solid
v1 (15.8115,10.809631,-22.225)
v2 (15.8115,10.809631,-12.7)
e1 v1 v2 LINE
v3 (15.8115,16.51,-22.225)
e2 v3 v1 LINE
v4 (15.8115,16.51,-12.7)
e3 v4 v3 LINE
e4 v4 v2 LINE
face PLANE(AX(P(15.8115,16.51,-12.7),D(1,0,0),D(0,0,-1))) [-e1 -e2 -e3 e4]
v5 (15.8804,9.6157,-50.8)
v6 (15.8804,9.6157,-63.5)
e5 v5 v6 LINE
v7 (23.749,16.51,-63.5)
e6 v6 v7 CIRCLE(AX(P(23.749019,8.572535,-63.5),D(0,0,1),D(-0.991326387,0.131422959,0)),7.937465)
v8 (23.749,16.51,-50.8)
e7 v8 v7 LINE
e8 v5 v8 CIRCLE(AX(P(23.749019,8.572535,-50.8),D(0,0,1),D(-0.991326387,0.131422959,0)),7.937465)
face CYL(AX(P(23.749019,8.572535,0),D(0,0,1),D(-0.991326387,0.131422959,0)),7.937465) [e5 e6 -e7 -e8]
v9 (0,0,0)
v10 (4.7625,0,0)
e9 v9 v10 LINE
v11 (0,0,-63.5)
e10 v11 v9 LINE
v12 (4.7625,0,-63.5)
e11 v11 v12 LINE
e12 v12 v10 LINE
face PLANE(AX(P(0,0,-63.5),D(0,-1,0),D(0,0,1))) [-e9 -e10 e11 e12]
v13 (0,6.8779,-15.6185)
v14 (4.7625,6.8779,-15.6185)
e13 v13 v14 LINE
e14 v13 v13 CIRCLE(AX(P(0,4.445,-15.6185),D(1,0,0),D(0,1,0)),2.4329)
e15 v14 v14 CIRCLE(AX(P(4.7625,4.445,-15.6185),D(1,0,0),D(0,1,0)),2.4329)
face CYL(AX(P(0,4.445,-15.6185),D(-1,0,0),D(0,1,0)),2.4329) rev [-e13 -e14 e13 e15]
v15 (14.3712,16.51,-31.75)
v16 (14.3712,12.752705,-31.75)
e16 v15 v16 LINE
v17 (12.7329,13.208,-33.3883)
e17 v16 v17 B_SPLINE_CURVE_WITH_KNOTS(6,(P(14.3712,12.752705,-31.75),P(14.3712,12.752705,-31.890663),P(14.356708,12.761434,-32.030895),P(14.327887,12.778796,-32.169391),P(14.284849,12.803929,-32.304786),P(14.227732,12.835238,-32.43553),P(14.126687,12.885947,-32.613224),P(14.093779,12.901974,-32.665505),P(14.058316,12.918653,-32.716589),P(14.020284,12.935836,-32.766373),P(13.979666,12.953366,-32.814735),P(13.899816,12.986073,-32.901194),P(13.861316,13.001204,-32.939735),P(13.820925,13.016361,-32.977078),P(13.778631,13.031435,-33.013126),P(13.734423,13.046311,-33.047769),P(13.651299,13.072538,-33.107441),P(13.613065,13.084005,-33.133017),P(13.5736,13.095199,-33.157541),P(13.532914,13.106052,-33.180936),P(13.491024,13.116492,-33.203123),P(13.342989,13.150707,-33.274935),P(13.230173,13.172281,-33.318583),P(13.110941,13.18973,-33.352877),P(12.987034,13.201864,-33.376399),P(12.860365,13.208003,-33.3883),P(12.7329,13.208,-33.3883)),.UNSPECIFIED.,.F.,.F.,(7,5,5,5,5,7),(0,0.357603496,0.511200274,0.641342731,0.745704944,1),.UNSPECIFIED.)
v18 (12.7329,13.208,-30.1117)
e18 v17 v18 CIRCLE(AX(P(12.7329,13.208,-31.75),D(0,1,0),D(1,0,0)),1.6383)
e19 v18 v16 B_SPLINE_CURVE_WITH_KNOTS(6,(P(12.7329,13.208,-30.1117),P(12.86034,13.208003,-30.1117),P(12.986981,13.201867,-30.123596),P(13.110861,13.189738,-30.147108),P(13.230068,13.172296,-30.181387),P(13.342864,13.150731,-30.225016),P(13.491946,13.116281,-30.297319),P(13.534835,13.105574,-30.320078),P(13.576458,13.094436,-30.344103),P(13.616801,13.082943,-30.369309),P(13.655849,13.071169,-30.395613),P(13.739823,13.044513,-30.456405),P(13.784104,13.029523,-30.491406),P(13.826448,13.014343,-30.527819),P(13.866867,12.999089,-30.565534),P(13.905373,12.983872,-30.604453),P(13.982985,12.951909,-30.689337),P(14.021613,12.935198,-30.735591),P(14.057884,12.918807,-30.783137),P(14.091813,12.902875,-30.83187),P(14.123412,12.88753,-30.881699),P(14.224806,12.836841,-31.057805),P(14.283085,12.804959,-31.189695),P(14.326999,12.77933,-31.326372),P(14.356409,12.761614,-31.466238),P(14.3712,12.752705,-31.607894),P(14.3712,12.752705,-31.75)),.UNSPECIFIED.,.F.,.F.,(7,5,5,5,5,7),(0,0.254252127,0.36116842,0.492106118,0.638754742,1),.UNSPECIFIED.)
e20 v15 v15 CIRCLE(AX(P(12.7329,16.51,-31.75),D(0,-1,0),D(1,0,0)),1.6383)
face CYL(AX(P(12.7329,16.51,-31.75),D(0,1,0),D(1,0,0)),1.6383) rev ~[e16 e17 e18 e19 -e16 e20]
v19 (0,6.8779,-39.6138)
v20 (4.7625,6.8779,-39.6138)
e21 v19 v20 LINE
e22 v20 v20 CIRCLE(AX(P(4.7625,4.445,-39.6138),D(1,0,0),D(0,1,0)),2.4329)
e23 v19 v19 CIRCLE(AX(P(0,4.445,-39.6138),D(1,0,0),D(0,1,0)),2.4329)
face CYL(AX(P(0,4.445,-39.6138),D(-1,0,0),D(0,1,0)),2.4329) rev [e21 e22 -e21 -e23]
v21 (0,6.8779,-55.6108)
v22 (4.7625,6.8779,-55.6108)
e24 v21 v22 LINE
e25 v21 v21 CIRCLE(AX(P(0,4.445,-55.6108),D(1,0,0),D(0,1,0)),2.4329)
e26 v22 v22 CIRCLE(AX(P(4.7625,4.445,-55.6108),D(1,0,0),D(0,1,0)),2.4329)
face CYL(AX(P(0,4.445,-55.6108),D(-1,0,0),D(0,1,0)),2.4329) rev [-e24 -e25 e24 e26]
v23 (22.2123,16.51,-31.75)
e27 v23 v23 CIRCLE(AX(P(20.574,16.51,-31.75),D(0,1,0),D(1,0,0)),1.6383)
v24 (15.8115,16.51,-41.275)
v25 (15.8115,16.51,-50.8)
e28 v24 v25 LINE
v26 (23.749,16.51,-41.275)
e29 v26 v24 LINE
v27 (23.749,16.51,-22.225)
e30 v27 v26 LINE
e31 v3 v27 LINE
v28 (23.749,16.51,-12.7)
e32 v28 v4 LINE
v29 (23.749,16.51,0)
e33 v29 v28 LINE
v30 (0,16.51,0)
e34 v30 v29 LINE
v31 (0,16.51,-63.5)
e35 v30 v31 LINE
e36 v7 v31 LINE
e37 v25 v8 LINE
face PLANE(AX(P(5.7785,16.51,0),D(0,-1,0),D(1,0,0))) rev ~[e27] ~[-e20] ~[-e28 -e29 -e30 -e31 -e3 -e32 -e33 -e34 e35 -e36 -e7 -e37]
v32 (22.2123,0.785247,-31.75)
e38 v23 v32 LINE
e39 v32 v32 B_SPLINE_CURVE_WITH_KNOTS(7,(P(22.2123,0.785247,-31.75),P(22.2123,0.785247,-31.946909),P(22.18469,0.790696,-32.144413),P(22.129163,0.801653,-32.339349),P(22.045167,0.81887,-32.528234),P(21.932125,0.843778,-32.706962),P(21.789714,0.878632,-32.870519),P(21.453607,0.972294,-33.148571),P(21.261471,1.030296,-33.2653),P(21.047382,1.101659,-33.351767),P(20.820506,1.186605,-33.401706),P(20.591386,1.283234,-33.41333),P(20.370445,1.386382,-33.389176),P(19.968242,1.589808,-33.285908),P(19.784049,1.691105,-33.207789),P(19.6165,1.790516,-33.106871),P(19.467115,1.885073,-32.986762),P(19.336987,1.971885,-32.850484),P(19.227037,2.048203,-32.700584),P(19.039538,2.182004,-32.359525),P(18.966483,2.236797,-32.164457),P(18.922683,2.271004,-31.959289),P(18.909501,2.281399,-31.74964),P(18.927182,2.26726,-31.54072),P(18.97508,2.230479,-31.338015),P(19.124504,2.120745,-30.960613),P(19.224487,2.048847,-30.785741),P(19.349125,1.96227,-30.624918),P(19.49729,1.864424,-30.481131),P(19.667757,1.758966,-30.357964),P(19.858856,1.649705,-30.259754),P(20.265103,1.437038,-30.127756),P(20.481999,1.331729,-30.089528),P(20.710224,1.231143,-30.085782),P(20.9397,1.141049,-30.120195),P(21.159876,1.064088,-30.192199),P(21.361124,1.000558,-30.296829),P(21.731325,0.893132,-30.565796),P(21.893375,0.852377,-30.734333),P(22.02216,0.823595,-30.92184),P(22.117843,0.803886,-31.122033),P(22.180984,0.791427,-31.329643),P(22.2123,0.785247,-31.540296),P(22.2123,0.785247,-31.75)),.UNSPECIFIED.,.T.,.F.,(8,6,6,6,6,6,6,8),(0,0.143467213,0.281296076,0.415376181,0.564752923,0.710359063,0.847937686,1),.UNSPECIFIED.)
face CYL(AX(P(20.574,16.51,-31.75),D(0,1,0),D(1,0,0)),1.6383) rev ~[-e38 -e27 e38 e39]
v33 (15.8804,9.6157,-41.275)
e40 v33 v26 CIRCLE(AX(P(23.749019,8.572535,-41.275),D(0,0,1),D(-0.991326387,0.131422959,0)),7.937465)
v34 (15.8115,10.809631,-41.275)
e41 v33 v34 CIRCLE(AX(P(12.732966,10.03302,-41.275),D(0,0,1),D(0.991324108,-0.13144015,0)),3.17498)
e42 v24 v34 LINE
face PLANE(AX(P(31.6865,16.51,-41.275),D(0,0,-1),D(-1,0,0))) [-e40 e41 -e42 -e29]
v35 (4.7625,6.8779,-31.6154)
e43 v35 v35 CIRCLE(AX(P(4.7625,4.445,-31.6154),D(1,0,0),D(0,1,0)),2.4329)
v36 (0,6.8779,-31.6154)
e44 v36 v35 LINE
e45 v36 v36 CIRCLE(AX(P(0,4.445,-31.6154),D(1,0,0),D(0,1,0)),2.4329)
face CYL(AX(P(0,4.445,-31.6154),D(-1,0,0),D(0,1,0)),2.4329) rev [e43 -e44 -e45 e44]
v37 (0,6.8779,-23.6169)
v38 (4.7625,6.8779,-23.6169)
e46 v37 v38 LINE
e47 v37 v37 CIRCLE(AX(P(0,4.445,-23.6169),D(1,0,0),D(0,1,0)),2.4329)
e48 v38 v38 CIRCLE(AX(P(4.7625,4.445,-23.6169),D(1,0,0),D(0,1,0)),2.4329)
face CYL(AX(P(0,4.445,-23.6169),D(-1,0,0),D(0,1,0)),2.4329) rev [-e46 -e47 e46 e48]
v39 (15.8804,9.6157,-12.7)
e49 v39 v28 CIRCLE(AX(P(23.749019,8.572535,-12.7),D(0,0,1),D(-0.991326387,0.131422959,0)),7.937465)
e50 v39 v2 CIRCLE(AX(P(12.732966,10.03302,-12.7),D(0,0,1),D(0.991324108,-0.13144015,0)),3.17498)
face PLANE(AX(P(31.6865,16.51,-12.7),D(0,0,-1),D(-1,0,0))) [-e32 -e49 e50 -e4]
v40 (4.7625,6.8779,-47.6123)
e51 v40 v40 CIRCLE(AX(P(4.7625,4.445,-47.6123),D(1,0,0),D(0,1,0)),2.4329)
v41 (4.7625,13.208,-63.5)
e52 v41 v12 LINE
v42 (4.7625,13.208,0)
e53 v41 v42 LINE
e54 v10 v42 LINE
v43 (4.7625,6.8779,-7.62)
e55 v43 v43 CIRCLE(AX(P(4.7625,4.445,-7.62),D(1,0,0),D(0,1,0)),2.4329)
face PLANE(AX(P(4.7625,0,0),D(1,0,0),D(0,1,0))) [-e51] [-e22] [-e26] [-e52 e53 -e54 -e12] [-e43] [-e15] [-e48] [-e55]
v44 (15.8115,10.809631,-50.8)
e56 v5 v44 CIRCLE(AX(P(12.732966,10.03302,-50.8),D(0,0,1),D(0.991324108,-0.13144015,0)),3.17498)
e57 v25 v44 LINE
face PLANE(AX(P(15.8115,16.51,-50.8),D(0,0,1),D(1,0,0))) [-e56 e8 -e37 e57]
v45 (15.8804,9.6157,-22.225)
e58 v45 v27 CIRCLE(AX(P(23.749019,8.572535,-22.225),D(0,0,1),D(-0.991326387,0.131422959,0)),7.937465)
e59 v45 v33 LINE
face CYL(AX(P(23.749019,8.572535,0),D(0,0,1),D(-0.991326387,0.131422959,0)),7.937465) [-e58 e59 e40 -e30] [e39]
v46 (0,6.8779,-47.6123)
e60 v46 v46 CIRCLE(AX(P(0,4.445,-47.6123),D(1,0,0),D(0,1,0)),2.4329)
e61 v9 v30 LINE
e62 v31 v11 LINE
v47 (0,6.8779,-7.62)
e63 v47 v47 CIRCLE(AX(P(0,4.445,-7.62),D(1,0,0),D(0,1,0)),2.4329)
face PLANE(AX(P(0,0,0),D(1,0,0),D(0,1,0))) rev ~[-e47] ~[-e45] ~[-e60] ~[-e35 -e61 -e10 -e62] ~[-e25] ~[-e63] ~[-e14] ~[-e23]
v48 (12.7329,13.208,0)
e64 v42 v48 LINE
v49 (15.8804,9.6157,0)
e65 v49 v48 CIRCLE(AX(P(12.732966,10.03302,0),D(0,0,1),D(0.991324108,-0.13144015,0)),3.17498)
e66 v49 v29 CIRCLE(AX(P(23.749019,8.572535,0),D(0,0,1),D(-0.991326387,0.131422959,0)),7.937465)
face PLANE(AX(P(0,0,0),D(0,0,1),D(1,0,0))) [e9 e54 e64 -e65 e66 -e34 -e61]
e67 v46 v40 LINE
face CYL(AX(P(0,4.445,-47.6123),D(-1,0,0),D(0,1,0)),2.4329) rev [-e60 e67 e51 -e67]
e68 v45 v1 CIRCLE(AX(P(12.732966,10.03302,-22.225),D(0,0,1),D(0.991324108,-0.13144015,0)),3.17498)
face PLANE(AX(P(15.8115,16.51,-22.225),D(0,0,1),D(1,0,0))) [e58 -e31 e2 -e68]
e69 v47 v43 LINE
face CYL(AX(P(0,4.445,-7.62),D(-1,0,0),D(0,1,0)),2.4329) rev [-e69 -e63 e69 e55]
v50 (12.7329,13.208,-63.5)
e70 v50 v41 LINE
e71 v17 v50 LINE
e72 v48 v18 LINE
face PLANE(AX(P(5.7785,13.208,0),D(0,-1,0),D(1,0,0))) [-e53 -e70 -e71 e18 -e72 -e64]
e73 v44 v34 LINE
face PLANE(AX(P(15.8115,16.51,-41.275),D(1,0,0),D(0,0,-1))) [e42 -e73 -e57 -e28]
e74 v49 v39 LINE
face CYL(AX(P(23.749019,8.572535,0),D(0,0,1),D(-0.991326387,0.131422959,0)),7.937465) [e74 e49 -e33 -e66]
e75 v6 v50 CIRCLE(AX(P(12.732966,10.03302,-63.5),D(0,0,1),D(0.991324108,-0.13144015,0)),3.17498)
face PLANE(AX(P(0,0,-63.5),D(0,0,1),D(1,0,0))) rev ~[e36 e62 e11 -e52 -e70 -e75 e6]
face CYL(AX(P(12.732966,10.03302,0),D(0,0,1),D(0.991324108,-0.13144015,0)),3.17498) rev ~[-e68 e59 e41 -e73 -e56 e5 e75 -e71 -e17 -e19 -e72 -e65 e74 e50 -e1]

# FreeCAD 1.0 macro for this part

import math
import FreeCAD as App
import Part
import Sketcher
from FreeCAD import Vector
Q = App.Units.Quantity

doc = App.newDocument("Part")
body = doc.addObject("PartDesign::Body", "Body")

# Sketch on YZ plane
sketch1 = doc.addObject("Sketcher::SketchObject", "Sketch")
body.addObject(sketch1)
sketch1.AttachmentSupport = (doc.YZ_Plane, [""])
sketch1.MapMode = "FlatFace"
sketch1.addGeometry([
    Part.LineSegment(Vector(16.5, 0, 0), Vector(0, 0, 0)),  # 0
    Part.LineSegment(Vector(0, 0, 0), Vector(0, -63.5, 0)),  # 1
    Part.LineSegment(Vector(0, -63.5, 0), Vector(16.5, -63.5, 0)),  # 2
    Part.LineSegment(Vector(16.5, -63.5, 0), Vector(16.5, 0, 0)),  # 3
    Part.Circle(Vector(4.4, -55.6, 0), Vector(0, 0, 1), 2.4),  # 4
    Part.Circle(Vector(4.4, -47.6, 0), Vector(0, 0, 1), 2.4),  # 5
    Part.Circle(Vector(4.4, -39.6, 0), Vector(0, 0, 1), 2.4),  # 6
    Part.Circle(Vector(4.4, -31.6, 0), Vector(0, 0, 1), 2.4),  # 7
    Part.Circle(Vector(4.4, -23.6, 0), Vector(0, 0, 1), 2.4),  # 8
    Part.Circle(Vector(4.4, -15.6, 0), Vector(0, 0, 1), 2.4),  # 9
    Part.Circle(Vector(4.4, -7.6, 0), Vector(0, 0, 1), 2.4),  # 10
], False)
sketch1.addConstraint([
    Sketcher.Constraint("Coincident", 0, 2, 1, 1),
    Sketcher.Constraint("Coincident", 1, 2, 2, 1),
    Sketcher.Constraint("Coincident", 2, 2, 3, 1),
    Sketcher.Constraint("Coincident", 3, 2, 0, 1),
    Sketcher.Constraint("Horizontal", 0),
    Sketcher.Constraint("Vertical", 1),
    Sketcher.Constraint("Horizontal", 2),
    Sketcher.Constraint("Vertical", 3),
    Sketcher.Constraint("Coincident", 0, 2, -1, 1),
    Sketcher.Constraint("Equal", 4, 5),
    Sketcher.Constraint("Equal", 5, 6),
    Sketcher.Constraint("Equal", 6, 7),
    Sketcher.Constraint("Equal", 7, 8),
    Sketcher.Constraint("Equal", 8, 9),
    Sketcher.Constraint("Equal", 9, 10),
    Sketcher.Constraint("Vertical", 4, 3, 5, 3),
    Sketcher.Constraint("Vertical", 5, 3, 6, 3),
    Sketcher.Constraint("Vertical", 6, 3, 7, 3),
    Sketcher.Constraint("Vertical", 7, 3, 8, 3),
    Sketcher.Constraint("Vertical", 8, 3, 9, 3),
    Sketcher.Constraint("Vertical", 9, 3, 10, 3),
    Sketcher.Constraint("DistanceY", 1, 2, 1, 1, Q("2.5 in")),
    Sketcher.Constraint("DistanceX", 0, 2, 0, 1, Q("0.65 in")),
    Sketcher.Constraint("DistanceY", 10, 3, -1, 1, Q("0.3 in")),
    Sketcher.Constraint("DistanceY", 4, 3, 5, 3, Q("0.3149 in")),
    Sketcher.Constraint("DistanceY", 5, 3, 6, 3, Q("0.3149 in")),
    Sketcher.Constraint("DistanceY", 6, 3, 7, 3, Q("0.3149 in")),
    Sketcher.Constraint("DistanceY", 7, 3, 8, 3, Q("0.3149 in")),
    Sketcher.Constraint("DistanceY", 8, 3, 9, 3, Q("0.3149 in")),
    Sketcher.Constraint("DistanceY", 9, 3, 10, 3, Q("0.3149 in")),
    Sketcher.Constraint("Diameter", 4, Q("4.8658 mm")),
    Sketcher.Constraint("DistanceX", -1, 1, 4, 3, Q("0.175 in")),
])
pad1 = doc.addObject("PartDesign::Pad", "Pad")
body.addObject(pad1)
pad1.Profile = sketch1
pad1.Length = Q("0.1875 in")

# Sketch on YZ plane
sketch2 = doc.addObject("Sketcher::SketchObject", "Sketch001")
body.addObject(sketch2)
sketch2.AttachmentSupport = (doc.YZ_Plane, [""])
sketch2.MapMode = "FlatFace"
sketch2.AttachmentOffset = App.Placement(Vector(0, 0, 0.1875 * 25.4), App.Rotation())
sketch2.addGeometry([
    Part.LineSegment(Vector(13.2, -63.5, 0), Vector(16.5, -63.5, 0)),
    Part.LineSegment(Vector(16.5, -63.5, 0), Vector(16.5, 0, 0)),
    Part.LineSegment(Vector(16.5, 0, 0), Vector(13.2, 0, 0)),
    Part.LineSegment(Vector(13.2, 0, 0), Vector(13.2, -63.5, 0)),
], False)
sketch2.addConstraint([
    Sketcher.Constraint("Coincident", 0, 2, 1, 1),
    Sketcher.Constraint("Coincident", 1, 2, 2, 1),
    Sketcher.Constraint("Coincident", 2, 2, 3, 1),
    Sketcher.Constraint("Coincident", 3, 2, 0, 1),
    Sketcher.Constraint("Horizontal", 0),
    Sketcher.Constraint("Vertical", 1),
    Sketcher.Constraint("Horizontal", 2),
    Sketcher.Constraint("Vertical", 3),
    Sketcher.Constraint("PointOnObject", 1, 2, -1),
    Sketcher.Constraint("DistanceX", 0, 1, 0, 2, Q("0.13 in")),
    Sketcher.Constraint("DistanceY", 1, 1, 1, 2, Q("2.5 in")),
    Sketcher.Constraint("DistanceX", -1, 1, 0, 2, Q("0.65 in")),
])
pad2 = doc.addObject("PartDesign::Pad", "Pad001")
body.addObject(pad2)
pad2.Profile = sketch2
pad2.Length = Q("0.04 in")

# Sketch on XY plane
sketch3 = doc.addObject("Sketcher::SketchObject", "Sketch002")
body.addObject(sketch3)
sketch3.AttachmentSupport = (doc.XY_Plane, [""])
sketch3.MapMode = "FlatFace"
sketch3.addGeometry([
    Part.LineSegment(Vector(23.7, 16.5, 0), Vector(5.8, 16.5, 0)),  # 0
    Part.LineSegment(Vector(5.8, 16.5, 0), Vector(5.8, 13.2, 0)),  # 1
    Part.LineSegment(Vector(5.8, 13.2, 0), Vector(12.7, 13.2, 0)),  # 2
    Part.ArcOfCircle(Part.Circle(Vector(12.7, 10, 0), Vector(0, 0, 1), 3.2), math.radians(-8), math.radians(90)),  # 3
    Part.ArcOfCircle(Part.Circle(Vector(23.7, 8.6, 0), Vector(0, 0, 1), 7.9), math.radians(172), math.radians(450)),  # 4
], False)
sketch3.addConstraint([
    Sketcher.Constraint("Coincident", 0, 2, 1, 1),
    Sketcher.Constraint("Coincident", 1, 2, 2, 1),
    Sketcher.Constraint("Tangent", 2, 2, 3, 2),
    Sketcher.Constraint("Tangent", 3, 1, 4, 1),
    Sketcher.Constraint("Tangent", 4, 2, 0, 1),
    Sketcher.Constraint("Horizontal", 0),
    Sketcher.Constraint("Vertical", 1),
    Sketcher.Constraint("Horizontal", 2),
    Sketcher.Constraint("Radius", 3, Q("0.125 in")),
    Sketcher.Constraint("Radius", 4, Q("0.3125 in")),
    Sketcher.Constraint("DistanceX", -1, 1, 4, 3, Q("0.935 in")),
    Sketcher.Constraint("DistanceY", 1, 2, 1, 1, Q("0.13 in")),
    Sketcher.Constraint("DistanceY", -1, 1, 0, 2, Q("0.65 in")),
    Sketcher.Constraint("DistanceX", 0, 2, 0, 1, Q("0.7075 in")),
])
pad3 = doc.addObject("PartDesign::Pad", "Pad002")
body.addObject(pad3)
pad3.Profile = sketch3
pad3.Length = Q("2.5 in")
pad3.Reversed = True

# Sketch on XZ plane
sketch4 = doc.addObject("Sketcher::SketchObject", "Sketch003")
body.addObject(sketch4)
sketch4.AttachmentSupport = (doc.XZ_Plane, [""])
sketch4.MapMode = "FlatFace"
sketch4.AttachmentOffset = App.Placement(Vector(0, 0, -0.65 * 25.4), App.Rotation())
sketch4.addGeometry([
    Part.LineSegment(Vector(16, -13, 0), Vector(32, -13, 0)),  # 0
    Part.LineSegment(Vector(32, -13, 0), Vector(32, -22, 0)),  # 1
    Part.LineSegment(Vector(32, -22, 0), Vector(16, -22, 0)),  # 2
    Part.LineSegment(Vector(16, -22, 0), Vector(16, -13, 0)),  # 3
    Part.LineSegment(Vector(16, -41, 0), Vector(32, -41, 0)),  # 4
    Part.LineSegment(Vector(32, -41, 0), Vector(32, -51, 0)),  # 5
    Part.LineSegment(Vector(32, -51, 0), Vector(16, -51, 0)),  # 6
    Part.LineSegment(Vector(16, -51, 0), Vector(16, -41, 0)),  # 7
], False)
sketch4.addConstraint([
    Sketcher.Constraint("Coincident", 0, 2, 1, 1),
    Sketcher.Constraint("Coincident", 1, 2, 2, 1),
    Sketcher.Constraint("Coincident", 2, 2, 3, 1),
    Sketcher.Constraint("Coincident", 3, 2, 0, 1),
    Sketcher.Constraint("Coincident", 4, 2, 5, 1),
    Sketcher.Constraint("Coincident", 5, 2, 6, 1),
    Sketcher.Constraint("Coincident", 6, 2, 7, 1),
    Sketcher.Constraint("Coincident", 7, 2, 4, 1),
    Sketcher.Constraint("Horizontal", 0),
    Sketcher.Constraint("Vertical", 1),
    Sketcher.Constraint("Horizontal", 2),
    Sketcher.Constraint("Vertical", 3),
    Sketcher.Constraint("Horizontal", 4),
    Sketcher.Constraint("Vertical", 5),
    Sketcher.Constraint("Horizontal", 6),
    Sketcher.Constraint("Vertical", 7),
    Sketcher.Constraint("Vertical", 1, 2, 4, 2),
    Sketcher.Constraint("Vertical", 3, 2, 6, 2),
    Sketcher.Constraint("Equal", 3, 5),
    Sketcher.Constraint("DistanceY", 0, 2, -1, 1, Q("0.5 in")),
    Sketcher.Constraint("DistanceX", 0, 1, 0, 2, Q("0.625 in")),
    Sketcher.Constraint("DistanceY", 1, 2, 1, 1, Q("0.375 in")),
    Sketcher.Constraint("DistanceY", 5, 2, -1, 1, Q("2 in")),
    Sketcher.Constraint("DistanceX", -1, 1, 0, 2, Q("1.2475 in")),
])
pocket1 = doc.addObject("PartDesign::Pocket", "Pocket")
body.addObject(pocket1)
pocket1.Profile = sketch4
pocket1.Type = "ThroughAll"
pocket1.Reversed = True

# Sketch on XZ plane
sketch5 = doc.addObject("Sketcher::SketchObject", "Sketch004")
body.addObject(sketch5)
sketch5.AttachmentSupport = (doc.XZ_Plane, [""])
sketch5.MapMode = "FlatFace"
sketch5.AttachmentOffset = App.Placement(Vector(0, 0, -0.65 * 25.4), App.Rotation())
sketch5.addGeometry([
    Part.Circle(Vector(20.6, -31.8, 0), Vector(0, 0, 1), 1.6),
    Part.Circle(Vector(12.7, -31.8, 0), Vector(0, 0, 1), 1.6),
], False)
sketch5.addConstraint([
    Sketcher.Constraint("Equal", 0, 1),
    Sketcher.Constraint("Horizontal", 0, 3, 1, 3),
    Sketcher.Constraint("Diameter", 0, Q("0.129 in")),
    Sketcher.Constraint("DistanceY", 0, 3, -1, 1, Q("1.25 in")),
    Sketcher.Constraint("DistanceX", -1, 1, 0, 3, Q("0.81 in")),
    Sketcher.Constraint("DistanceX", -1, 1, 1, 3, Q("0.5013 in")),
])
pocket2 = doc.addObject("PartDesign::Pocket", "Pocket001")
body.addObject(pocket2)
pocket2.Profile = sketch5
pocket2.Type = "ThroughAll"
pocket2.Reversed = True

doc.recompute()
